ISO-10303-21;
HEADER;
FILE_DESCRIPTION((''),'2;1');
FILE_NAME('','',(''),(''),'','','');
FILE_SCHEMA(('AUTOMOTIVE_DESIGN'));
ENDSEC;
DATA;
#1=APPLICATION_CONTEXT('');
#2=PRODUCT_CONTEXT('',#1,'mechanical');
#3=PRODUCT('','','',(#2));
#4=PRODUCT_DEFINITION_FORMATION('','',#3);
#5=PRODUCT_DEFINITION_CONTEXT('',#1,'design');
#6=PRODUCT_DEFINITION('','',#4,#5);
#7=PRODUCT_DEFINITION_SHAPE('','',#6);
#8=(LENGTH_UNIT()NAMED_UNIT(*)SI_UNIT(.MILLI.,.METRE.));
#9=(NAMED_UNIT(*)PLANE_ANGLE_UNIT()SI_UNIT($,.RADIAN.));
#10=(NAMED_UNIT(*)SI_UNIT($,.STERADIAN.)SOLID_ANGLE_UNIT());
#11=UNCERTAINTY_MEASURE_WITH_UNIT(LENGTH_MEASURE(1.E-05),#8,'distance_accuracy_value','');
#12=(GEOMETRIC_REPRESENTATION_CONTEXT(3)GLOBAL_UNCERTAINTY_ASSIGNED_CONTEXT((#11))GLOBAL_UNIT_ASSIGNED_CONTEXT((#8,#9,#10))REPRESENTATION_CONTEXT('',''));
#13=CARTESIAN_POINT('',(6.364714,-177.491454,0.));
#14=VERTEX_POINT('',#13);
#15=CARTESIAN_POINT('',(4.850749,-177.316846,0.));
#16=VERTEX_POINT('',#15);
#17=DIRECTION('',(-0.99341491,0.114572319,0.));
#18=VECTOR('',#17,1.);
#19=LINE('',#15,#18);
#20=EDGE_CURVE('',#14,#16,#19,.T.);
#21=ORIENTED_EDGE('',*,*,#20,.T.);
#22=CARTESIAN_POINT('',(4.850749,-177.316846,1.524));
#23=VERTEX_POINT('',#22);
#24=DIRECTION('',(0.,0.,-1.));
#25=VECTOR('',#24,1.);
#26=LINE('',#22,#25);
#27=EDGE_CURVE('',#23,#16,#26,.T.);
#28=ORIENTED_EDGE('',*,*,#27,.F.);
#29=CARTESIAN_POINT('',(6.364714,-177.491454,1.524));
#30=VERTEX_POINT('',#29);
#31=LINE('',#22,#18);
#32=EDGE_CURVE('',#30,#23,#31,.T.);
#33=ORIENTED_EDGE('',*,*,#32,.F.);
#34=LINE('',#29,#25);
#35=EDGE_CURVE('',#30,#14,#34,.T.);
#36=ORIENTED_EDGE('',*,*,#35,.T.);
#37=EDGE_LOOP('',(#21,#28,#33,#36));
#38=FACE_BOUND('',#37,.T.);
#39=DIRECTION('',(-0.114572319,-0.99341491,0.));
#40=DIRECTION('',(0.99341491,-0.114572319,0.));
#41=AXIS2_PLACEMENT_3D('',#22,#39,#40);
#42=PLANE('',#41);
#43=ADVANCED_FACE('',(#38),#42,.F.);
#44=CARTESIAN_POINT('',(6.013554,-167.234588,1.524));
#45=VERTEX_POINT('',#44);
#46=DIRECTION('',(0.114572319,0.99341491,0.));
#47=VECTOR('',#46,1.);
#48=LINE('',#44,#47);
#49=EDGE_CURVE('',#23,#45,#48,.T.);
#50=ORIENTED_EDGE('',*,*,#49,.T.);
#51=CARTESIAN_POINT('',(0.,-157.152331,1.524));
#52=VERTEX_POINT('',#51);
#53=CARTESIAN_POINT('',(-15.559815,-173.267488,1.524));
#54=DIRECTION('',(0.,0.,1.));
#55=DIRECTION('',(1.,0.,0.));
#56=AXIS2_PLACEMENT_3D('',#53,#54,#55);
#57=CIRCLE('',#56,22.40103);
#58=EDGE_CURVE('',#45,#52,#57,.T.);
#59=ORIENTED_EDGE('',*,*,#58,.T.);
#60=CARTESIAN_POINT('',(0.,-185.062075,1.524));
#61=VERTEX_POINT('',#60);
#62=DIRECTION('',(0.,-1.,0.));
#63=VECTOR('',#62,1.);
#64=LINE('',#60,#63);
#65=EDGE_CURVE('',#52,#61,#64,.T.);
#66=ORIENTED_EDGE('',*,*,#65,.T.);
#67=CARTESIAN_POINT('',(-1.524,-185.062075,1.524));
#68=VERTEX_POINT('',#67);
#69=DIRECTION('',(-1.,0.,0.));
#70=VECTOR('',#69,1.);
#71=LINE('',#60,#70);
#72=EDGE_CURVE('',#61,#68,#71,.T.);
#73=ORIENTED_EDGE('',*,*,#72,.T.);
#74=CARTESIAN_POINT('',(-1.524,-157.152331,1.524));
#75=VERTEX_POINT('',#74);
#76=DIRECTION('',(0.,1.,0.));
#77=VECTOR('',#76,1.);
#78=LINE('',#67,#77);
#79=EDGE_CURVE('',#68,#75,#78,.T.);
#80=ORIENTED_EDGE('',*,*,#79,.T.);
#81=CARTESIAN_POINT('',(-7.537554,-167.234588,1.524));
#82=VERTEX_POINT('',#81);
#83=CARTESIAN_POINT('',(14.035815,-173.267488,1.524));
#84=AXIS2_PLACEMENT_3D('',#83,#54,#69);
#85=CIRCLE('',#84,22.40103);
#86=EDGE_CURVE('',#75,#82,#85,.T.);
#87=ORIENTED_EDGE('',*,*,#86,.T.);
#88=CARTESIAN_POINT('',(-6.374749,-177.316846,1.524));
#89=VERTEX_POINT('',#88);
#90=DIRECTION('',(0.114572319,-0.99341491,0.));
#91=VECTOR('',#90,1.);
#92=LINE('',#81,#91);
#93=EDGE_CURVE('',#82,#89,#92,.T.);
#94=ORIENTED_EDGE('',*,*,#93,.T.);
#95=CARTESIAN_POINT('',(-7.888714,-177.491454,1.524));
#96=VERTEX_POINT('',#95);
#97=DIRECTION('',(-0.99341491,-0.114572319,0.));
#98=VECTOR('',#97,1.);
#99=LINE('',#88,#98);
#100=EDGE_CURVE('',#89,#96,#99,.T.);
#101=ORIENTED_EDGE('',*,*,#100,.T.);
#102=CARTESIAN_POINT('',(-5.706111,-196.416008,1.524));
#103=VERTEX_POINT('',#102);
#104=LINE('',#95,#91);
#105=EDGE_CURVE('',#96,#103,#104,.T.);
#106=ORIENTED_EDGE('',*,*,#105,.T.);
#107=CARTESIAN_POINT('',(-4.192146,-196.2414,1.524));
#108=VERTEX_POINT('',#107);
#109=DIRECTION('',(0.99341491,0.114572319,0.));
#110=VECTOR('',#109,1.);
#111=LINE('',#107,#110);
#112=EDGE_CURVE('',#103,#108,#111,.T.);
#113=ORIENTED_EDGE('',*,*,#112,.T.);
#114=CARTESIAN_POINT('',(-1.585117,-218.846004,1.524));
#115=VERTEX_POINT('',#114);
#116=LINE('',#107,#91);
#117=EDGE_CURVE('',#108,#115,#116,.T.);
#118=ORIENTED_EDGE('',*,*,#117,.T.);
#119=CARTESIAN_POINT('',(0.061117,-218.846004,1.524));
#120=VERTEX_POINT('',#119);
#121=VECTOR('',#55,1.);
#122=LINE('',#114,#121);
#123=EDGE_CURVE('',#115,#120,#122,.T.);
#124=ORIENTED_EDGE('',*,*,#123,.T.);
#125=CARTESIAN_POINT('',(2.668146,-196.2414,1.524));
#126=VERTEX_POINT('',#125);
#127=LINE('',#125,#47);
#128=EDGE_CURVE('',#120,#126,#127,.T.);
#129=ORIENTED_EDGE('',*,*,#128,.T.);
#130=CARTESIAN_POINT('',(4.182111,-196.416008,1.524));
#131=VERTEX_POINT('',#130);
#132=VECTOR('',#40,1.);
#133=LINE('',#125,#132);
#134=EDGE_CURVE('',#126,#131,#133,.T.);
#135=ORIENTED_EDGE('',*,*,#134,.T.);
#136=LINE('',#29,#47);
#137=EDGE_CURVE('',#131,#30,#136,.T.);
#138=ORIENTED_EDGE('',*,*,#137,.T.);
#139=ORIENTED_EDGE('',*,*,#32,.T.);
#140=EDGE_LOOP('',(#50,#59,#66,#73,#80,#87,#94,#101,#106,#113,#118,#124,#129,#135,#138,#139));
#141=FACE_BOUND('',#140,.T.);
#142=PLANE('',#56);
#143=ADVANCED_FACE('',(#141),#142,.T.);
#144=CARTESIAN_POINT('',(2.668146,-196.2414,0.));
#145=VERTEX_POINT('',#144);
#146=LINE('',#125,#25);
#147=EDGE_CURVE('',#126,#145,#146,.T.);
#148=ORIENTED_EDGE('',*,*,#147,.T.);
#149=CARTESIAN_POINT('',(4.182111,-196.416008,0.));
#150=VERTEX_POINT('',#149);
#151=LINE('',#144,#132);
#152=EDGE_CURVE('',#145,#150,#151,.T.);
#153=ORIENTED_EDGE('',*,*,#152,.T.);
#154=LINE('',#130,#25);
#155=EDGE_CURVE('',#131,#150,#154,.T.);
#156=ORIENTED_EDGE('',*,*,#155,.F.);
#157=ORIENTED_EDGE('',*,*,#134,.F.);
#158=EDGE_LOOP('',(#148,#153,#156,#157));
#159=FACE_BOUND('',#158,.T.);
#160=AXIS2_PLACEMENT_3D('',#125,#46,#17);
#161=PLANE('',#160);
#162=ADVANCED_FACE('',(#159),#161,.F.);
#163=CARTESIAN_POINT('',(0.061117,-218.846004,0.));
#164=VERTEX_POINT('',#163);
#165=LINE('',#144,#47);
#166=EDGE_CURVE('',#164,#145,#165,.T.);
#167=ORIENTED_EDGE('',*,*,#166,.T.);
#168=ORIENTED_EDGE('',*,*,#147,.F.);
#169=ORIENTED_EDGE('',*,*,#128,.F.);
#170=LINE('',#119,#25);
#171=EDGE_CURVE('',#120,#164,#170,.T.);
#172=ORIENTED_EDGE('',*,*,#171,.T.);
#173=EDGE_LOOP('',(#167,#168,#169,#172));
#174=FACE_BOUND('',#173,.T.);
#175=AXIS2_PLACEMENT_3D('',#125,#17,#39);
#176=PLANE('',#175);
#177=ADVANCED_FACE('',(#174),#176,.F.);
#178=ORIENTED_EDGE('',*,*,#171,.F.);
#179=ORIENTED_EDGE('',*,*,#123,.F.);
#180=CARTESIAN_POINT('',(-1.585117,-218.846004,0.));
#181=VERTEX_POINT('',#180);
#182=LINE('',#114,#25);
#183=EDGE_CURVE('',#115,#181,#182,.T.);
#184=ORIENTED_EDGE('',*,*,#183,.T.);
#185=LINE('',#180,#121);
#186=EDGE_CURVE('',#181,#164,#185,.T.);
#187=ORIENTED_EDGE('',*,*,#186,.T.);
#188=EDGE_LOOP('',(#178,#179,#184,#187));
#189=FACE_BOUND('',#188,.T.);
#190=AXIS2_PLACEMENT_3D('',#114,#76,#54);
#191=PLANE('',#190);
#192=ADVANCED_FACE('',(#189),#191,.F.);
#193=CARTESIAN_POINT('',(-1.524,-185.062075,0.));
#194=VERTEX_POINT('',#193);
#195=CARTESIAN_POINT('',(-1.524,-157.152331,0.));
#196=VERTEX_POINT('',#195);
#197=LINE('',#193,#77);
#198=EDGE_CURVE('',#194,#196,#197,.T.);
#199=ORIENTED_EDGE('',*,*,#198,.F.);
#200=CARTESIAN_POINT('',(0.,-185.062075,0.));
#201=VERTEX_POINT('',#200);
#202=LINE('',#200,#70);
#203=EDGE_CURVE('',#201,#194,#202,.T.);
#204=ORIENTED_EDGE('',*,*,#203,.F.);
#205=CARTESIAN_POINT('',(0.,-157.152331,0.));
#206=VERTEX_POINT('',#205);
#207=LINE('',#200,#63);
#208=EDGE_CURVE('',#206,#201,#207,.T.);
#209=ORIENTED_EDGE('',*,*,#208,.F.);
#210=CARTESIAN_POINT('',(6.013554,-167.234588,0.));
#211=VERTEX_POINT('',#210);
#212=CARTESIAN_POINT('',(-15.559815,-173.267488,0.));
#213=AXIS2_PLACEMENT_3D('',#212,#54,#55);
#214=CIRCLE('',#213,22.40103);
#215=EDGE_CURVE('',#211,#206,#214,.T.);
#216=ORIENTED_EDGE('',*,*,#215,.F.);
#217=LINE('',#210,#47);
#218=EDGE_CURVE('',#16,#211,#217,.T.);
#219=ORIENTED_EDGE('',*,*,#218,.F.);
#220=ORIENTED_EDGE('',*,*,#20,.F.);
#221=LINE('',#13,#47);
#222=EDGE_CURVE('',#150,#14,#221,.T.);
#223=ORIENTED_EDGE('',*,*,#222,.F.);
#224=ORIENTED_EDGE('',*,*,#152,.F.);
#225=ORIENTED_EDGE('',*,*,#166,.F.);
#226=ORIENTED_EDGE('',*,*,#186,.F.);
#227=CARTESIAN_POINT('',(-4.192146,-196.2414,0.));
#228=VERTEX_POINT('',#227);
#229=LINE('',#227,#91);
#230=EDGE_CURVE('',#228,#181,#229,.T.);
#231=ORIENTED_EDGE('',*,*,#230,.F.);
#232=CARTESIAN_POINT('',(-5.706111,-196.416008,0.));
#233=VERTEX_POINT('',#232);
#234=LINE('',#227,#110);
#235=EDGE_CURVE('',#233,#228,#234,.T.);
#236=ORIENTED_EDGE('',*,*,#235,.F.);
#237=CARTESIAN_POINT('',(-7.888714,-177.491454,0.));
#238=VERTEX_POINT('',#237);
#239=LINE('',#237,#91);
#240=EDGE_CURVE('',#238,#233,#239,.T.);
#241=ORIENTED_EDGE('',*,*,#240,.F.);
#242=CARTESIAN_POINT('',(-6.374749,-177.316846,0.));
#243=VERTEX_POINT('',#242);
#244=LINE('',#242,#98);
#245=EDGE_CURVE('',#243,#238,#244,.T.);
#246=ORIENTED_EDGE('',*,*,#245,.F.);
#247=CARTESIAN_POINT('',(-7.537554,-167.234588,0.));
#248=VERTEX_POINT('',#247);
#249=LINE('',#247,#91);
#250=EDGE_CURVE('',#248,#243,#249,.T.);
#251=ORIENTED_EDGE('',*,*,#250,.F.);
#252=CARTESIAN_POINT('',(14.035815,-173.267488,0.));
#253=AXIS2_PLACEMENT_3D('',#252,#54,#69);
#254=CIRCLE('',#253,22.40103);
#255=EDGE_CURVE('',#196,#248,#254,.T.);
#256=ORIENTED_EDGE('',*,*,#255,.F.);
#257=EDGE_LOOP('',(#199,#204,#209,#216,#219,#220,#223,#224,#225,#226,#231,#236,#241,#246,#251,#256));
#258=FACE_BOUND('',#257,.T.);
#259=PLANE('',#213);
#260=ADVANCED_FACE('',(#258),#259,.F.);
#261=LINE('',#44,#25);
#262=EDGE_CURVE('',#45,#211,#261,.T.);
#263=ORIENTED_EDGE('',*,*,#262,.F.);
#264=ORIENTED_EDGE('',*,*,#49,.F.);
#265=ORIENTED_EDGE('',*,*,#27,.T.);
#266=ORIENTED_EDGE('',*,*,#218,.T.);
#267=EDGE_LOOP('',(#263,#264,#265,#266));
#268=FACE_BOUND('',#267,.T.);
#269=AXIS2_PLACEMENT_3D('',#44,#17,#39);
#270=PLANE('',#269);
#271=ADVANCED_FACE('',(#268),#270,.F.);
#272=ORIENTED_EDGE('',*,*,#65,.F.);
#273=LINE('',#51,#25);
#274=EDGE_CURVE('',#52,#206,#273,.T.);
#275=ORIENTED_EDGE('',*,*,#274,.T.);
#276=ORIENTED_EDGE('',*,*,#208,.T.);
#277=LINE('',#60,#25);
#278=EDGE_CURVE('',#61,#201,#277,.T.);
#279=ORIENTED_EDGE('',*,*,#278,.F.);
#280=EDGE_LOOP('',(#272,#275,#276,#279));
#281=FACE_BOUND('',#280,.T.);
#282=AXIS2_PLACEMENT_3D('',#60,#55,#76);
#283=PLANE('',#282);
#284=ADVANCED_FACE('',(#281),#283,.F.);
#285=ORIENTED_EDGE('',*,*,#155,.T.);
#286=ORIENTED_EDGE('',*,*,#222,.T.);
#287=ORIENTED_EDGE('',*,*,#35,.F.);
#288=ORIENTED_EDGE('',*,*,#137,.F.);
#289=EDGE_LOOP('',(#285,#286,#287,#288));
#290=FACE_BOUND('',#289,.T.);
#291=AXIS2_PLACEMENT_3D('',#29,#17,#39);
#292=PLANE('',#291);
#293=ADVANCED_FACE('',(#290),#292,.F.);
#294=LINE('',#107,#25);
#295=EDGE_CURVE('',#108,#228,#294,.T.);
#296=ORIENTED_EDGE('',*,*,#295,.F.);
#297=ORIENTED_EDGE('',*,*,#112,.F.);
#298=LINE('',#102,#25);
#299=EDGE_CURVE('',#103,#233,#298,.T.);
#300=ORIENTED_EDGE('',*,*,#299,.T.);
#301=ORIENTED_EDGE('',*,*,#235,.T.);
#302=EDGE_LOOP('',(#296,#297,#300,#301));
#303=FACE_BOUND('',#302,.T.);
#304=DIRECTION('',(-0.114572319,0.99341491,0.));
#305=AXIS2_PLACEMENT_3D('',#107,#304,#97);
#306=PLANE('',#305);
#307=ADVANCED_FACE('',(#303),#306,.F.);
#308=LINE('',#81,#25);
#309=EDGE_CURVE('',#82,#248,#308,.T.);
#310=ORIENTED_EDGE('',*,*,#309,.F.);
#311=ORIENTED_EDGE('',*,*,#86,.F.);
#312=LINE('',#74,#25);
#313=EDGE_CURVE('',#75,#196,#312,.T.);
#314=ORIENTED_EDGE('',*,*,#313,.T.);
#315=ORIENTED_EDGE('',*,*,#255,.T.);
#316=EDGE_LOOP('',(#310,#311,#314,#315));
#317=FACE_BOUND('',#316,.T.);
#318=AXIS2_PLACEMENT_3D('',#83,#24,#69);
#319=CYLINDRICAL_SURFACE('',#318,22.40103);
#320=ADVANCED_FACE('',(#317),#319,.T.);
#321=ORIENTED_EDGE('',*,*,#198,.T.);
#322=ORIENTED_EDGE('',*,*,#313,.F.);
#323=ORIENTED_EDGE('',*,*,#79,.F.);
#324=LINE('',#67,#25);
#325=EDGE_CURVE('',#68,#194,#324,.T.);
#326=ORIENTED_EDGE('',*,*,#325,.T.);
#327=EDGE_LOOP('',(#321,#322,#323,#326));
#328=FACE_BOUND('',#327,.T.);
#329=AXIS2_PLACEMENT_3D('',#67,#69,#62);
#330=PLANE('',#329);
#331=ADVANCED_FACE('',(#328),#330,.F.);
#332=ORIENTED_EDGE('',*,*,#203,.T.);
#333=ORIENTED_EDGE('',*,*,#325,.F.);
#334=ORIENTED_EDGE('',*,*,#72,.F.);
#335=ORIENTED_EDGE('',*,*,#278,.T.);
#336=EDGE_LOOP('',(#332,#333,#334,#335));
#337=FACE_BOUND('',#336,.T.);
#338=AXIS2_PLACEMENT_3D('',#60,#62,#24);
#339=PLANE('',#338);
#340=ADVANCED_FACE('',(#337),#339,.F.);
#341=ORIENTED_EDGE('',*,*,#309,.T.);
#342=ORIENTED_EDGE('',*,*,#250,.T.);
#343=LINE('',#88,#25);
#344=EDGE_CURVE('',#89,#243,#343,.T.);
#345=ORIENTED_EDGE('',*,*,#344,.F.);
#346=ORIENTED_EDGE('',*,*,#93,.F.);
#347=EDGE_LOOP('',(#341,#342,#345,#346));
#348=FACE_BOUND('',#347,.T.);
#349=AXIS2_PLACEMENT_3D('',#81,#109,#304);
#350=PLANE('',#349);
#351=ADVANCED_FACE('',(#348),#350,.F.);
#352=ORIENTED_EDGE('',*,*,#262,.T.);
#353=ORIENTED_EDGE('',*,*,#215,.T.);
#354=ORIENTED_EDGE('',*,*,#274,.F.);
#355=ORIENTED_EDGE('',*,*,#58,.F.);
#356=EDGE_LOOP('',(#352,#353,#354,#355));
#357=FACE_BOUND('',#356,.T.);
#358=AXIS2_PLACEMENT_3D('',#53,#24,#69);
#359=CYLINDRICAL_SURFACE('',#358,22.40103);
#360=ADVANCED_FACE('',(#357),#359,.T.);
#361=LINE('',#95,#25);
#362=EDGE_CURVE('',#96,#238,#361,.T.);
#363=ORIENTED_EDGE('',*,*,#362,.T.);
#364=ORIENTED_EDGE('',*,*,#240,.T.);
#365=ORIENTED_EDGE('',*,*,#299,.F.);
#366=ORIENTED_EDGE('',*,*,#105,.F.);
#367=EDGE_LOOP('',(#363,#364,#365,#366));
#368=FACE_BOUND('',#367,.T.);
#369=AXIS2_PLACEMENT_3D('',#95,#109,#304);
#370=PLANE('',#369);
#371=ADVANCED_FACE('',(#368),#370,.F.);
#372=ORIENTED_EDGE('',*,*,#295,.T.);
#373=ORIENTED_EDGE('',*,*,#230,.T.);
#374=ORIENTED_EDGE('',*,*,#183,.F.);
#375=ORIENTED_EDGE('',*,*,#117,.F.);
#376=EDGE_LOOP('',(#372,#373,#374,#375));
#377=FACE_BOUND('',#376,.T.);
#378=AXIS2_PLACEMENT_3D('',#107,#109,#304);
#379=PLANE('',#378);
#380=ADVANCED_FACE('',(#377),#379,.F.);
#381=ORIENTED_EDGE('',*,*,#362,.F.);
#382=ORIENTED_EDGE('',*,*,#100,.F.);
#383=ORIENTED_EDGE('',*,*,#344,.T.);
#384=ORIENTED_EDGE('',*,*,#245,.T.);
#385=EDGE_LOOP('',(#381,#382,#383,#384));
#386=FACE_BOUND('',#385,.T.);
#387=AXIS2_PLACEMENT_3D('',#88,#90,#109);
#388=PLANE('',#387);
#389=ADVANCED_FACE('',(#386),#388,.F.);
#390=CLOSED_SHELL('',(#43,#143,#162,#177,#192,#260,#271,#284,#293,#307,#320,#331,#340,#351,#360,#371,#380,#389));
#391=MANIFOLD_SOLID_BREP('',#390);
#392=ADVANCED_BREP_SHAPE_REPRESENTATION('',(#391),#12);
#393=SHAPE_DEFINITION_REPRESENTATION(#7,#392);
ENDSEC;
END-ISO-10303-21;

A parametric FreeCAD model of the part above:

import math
import FreeCAD as App
import Part
import Sketcher
from FreeCAD import Vector
Q = App.Units.Quantity

doc = App.newDocument("Part")
body = doc.addObject("PartDesign::Body", "Body")

# Sketch on XY plane
sketch1 = body.newObject("Sketcher::SketchObject", "Sketch")
sketch1.AttachmentSupport = (doc.getObject("XY_Plane"), [""])
sketch1.MapMode = "FlatFace"
sketch1.addGeometry([
    Part.LineSegment(Vector(0, -185.1, 0), Vector(-1.5, -185.1, 0)),  # 0
    Part.LineSegment(Vector(-1.5, -185.1, 0), Vector(-1.5, -157.2, 0)),  # 1
    Part.ArcOfCircle(Part.Circle(Vector(14, -173.3, 0), Vector(0, 0, 1), 22.4), math.radians(134), math.radians(164)),  # 2
    Part.LineSegment(Vector(-7.5, -167.2, 0), Vector(-6.4, -177.3, 0)),  # 3
    Part.LineSegment(Vector(-6.4, -177.3, 0), Vector(-7.9, -177.5, 0)),  # 4
    Part.LineSegment(Vector(-7.9, -177.5, 0), Vector(-5.7, -196.4, 0)),  # 5
    Part.LineSegment(Vector(-5.7, -196.4, 0), Vector(-4.2, -196.2, 0)),  # 6
    Part.LineSegment(Vector(-4.2, -196.2, 0), Vector(-1.6, -218.8, 0)),  # 7
    Part.LineSegment(Vector(-1.6, -218.8, 0), Vector(0.1, -218.8, 0)),  # 8
    Part.LineSegment(Vector(0.1, -218.8, 0), Vector(2.7, -196.2, 0)),  # 9
    Part.LineSegment(Vector(2.7, -196.2, 0), Vector(4.2, -196.4, 0)),  # 10
    Part.LineSegment(Vector(4.2, -196.4, 0), Vector(6.4, -177.5, 0)),  # 11
    Part.LineSegment(Vector(6.4, -177.5, 0), Vector(4.9, -177.3, 0)),  # 12
    Part.LineSegment(Vector(4.9, -177.3, 0), Vector(6, -167.2, 0)),  # 13
    Part.ArcOfCircle(Part.Circle(Vector(-15.6, -173.3, 0), Vector(0, 0, 1), 22.4), math.radians(16), math.radians(46)),  # 14
    Part.LineSegment(Vector(0, -157.2, 0), Vector(0, -185.1, 0)),  # 15
], False)
sketch1.addConstraint([
    Sketcher.Constraint("Coincident", 0, 2, 1, 1),
    Sketcher.Constraint("Coincident", 1, 2, 2, 1),
    Sketcher.Constraint("Coincident", 2, 2, 3, 1),
    Sketcher.Constraint("Coincident", 3, 2, 4, 1),
    Sketcher.Constraint("Coincident", 4, 2, 5, 1),
    Sketcher.Constraint("Coincident", 5, 2, 6, 1),
    Sketcher.Constraint("Coincident", 6, 2, 7, 1),
    Sketcher.Constraint("Coincident", 7, 2, 8, 1),
    Sketcher.Constraint("Coincident", 8, 2, 9, 1),
    Sketcher.Constraint("Coincident", 9, 2, 10, 1),
    Sketcher.Constraint("Coincident", 10, 2, 11, 1),
    Sketcher.Constraint("Coincident", 11, 2, 12, 1),
    Sketcher.Constraint("Coincident", 12, 2, 13, 1),
    Sketcher.Constraint("Coincident", 13, 2, 14, 1),
    Sketcher.Constraint("Coincident", 14, 2, 15, 1),
    Sketcher.Constraint("Coincident", 15, 2, 0, 1),
    Sketcher.Constraint("Horizontal", 0),
    Sketcher.Constraint("Vertical", 1),
    Sketcher.Constraint("Horizontal", 8),
    Sketcher.Constraint("Vertical", 15),
    Sketcher.Constraint("Equal", 2, 14),
    Sketcher.Constraint("PointOnObject", 14, 2, -2),
    Sketcher.Constraint("Perpendicular", 3, 4),
    Sketcher.Constraint("Perpendicular", 4, 5),
    Sketcher.Constraint("Perpendicular", 5, 6),
    Sketcher.Constraint("Perpendicular", 6, 7),
    Sketcher.Constraint("Perpendicular", 9, 10),
    Sketcher.Constraint("Perpendicular", 10, 11),
    Sketcher.Constraint("Perpendicular", 11, 12),
    Sketcher.Constraint("Perpendicular", 12, 13),
    Sketcher.Constraint("Horizontal", 2, 3, 14, 3),
    Sketcher.Constraint("Horizontal", 6, 2, 9, 2),
    Sketcher.Constraint("Horizontal", 5, 2, 10, 2),
    Sketcher.Constraint("Horizontal", 4, 2, 11, 2),
    Sketcher.Constraint("Horizontal", 3, 2, 12, 2),
    Sketcher.Constraint("Horizontal", 2, 2, 13, 2),
    Sketcher.Constraint("Horizontal", 1, 2, 14, 2),
    Sketcher.Constraint("Equal", 4, 6),
    Sketcher.Constraint("Equal", 7, 9),
    Sketcher.Constraint("DistanceX", 0, 2, 0, 1, Q("0.06 in")),
    Sketcher.Constraint("Distance", 4, Q("0.06 in")),
    Sketcher.Constraint("Distance", 5, Q("0.75 in")),
    Sketcher.Constraint("Radius", 2, Q("22.40103 mm")),
    Sketcher.Constraint("DistanceX", 5, 2, 10, 2, Q("0.3893001 in")),
    Sketcher.Constraint("DistanceY", 6, 2, -1, 1, Q("196.2414 mm")),
    Sketcher.Constraint("DistanceY", 14, 3, 2, 2, Q("6.032899 mm")),
    Sketcher.Constraint("DistanceX", 14, 3, 4, 2, Q("7.671102 mm")),
    Sketcher.Constraint("DistanceX", 3, 2, 12, 2, Q("11.225498 mm")),
    Sketcher.Constraint("DistanceX", 8, 1, 8, 2, Q("1.646234 mm")),
    Sketcher.Constraint("DistanceY", 1, 1, 1, 2, Q("27.909744 mm")),
])
pad1 = body.newObject("PartDesign::Pad", "Pad")
pad1.Profile = sketch1
pad1.Length = Q("0.06 in")

doc.recompute()
